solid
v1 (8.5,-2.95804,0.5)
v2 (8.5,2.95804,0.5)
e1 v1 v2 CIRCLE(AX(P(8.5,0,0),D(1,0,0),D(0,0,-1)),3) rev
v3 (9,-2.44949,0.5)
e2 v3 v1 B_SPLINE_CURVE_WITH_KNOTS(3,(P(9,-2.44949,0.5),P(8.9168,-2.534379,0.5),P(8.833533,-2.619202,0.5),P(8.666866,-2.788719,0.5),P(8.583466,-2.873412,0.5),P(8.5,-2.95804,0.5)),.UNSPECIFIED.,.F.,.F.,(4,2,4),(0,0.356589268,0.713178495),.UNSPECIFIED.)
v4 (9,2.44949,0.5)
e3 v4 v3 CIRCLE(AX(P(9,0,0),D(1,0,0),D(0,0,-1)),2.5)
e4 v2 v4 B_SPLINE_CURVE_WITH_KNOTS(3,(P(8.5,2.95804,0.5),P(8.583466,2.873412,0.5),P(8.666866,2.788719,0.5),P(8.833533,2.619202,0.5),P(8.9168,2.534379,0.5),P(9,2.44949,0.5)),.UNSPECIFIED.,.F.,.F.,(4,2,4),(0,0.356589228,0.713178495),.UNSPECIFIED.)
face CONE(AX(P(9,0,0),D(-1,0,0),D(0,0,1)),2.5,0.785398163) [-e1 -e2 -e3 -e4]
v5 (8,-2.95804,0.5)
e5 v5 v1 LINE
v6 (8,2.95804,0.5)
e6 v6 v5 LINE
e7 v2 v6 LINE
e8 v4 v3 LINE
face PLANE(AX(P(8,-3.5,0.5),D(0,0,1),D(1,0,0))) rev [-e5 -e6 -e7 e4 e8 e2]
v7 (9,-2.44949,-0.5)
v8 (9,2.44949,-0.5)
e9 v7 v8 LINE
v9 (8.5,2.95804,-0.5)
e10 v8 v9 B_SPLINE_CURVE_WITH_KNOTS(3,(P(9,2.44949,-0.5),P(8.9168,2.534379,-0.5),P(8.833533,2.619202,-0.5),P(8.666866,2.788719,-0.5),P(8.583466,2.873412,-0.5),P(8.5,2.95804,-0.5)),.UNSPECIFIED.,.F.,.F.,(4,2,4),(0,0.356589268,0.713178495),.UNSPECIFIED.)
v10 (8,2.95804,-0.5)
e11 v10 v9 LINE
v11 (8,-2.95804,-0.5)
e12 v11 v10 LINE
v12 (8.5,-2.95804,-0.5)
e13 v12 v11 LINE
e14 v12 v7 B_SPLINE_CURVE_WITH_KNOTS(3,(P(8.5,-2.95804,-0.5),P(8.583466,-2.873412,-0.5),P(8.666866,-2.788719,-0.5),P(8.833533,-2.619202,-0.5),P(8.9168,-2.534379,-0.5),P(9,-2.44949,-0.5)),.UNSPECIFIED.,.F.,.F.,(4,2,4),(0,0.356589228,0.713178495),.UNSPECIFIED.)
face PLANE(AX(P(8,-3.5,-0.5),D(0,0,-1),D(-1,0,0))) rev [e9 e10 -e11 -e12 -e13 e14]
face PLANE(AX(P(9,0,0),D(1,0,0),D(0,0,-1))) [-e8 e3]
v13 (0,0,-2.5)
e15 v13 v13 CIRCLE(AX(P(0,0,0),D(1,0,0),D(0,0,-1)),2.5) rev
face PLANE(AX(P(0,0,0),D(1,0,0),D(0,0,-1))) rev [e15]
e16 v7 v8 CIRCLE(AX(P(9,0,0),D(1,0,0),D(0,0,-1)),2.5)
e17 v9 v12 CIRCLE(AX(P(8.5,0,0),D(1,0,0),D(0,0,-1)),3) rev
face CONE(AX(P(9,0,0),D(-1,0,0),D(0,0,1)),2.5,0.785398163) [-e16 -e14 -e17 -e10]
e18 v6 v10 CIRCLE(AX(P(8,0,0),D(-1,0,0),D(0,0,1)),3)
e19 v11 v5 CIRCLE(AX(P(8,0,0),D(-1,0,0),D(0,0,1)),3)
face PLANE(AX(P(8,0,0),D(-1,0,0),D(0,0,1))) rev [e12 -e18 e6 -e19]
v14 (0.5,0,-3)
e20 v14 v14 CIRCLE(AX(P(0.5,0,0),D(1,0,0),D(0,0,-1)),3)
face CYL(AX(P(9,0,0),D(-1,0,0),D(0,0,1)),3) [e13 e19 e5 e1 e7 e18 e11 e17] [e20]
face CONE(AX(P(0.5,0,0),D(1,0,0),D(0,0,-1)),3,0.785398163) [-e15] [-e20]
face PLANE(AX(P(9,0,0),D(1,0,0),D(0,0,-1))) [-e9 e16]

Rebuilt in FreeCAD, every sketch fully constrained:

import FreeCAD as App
import Part
import Sketcher


def edges_at(feature, points):
    """Names of the edges that pass closest to the given points."""
    edges = feature.Shape.Edges
    near = lambda p: min(range(len(edges)), key=lambda i: edges[i].distToShape(Part.Vertex(*p))[0])
    return sorted({f"Edge{near(p) + 1}" for p in points})


def add_polygon(sketch, points):
    """Adds a closed chain of lines whose ends are joined by coincident constraints."""
    first, n = sketch.GeometryCount, len(points)
    for a, b in zip(points, points[1:] + points[:1]):
        sketch.addGeometry(Part.LineSegment(App.Vector(*a, 0), App.Vector(*b, 0)), False)
    for i in range(n):
        sketch.addConstraint(Sketcher.Constraint("Coincident", first + i, 2, first + (i + 1) % n, 1))

doc = App.newDocument("Part")
params = doc.addObject("Spreadsheet::Sheet", "Params")
for row, (alias, value) in enumerate([
    ("sketch1_diameter", "6 mm"),
    ("pad1_length", "9 mm"),
    ("sketch2_width", "7 mm"),
    ("sketch2_height", "1 mm"),
    ("pocket1_length", "1 mm"),
    ("chamfer_size", "0.5 mm"),
], start=1):
    params.set(f"A{row}", alias)
    params.set(f"B{row}", "=" + value)
    params.setAlias(f"B{row}", alias)

body = doc.addObject("PartDesign::Body", "Body")

sketch1 = body.newObject("Sketcher::SketchObject", "Sketch")
sketch1.AttachmentSupport = (doc.getObject("YZ_Plane"), [""])
sketch1.MapMode = "FlatFace"
sketch1.addGeometry(Part.Circle(App.Vector(0, 0, 0), App.Vector(0, 0, 1), 3), False)
sketch1.addConstraint(Sketcher.Constraint("Coincident", 0, 3, -1, 1))
sketch1.addConstraint(Sketcher.Constraint("Diameter", 0, 6.0))
sketch1.setExpression("Constraints[1]", "Params.sketch1_diameter")
pad1 = body.newObject("PartDesign::Pad", "Pad")
pad1.Profile = sketch1
pad1.setExpression("Length", "Params.pad1_length")

sketch2 = body.newObject("Sketcher::SketchObject", "Sketch001")
sketch2.AttachmentSupport = (doc.getObject("YZ_Plane"), [""])
sketch2.MapMode = "FlatFace"
sketch2.AttachmentOffset = App.Placement(App.Vector(0, 0, 9), App.Rotation())
add_polygon(sketch2, [(3.5, 0.5), (-3.5, 0.5), (-3.5, -0.5), (3.5, -0.5)])
sketch2.addConstraint(Sketcher.Constraint("Horizontal", 0))
sketch2.addConstraint(Sketcher.Constraint("Vertical", 1))
sketch2.addConstraint(Sketcher.Constraint("Horizontal", 2))
sketch2.addConstraint(Sketcher.Constraint("Vertical", 3))
sketch2.addConstraint(Sketcher.Constraint("Symmetric", 0, 2, 2, 2, -1, 1))
sketch2.addConstraint(Sketcher.Constraint("DistanceX", 0, 2, 0, 1, 7.0))
sketch2.addConstraint(Sketcher.Constraint("DistanceY", 1, 2, 1, 1, 1.0))
sketch2.setExpression("Constraints[9]", "Params.sketch2_width")
sketch2.setExpression("Constraints[10]", "Params.sketch2_height")
pocket1 = body.newObject("PartDesign::Pocket", "Pocket")
pocket1.Profile = sketch2
pocket1.setExpression("Length", "Params.pocket1_length")
doc.recompute()

chamfer = body.newObject("PartDesign::Chamfer", "Chamfer")
chamfer.Base = (pocket1, edges_at(pocket1, [(0, 0, 3), (9, 0, 3), (9, -1.936, -2.291)]))
chamfer.setExpression("Size", "Params.chamfer_size")

doc.recompute()
